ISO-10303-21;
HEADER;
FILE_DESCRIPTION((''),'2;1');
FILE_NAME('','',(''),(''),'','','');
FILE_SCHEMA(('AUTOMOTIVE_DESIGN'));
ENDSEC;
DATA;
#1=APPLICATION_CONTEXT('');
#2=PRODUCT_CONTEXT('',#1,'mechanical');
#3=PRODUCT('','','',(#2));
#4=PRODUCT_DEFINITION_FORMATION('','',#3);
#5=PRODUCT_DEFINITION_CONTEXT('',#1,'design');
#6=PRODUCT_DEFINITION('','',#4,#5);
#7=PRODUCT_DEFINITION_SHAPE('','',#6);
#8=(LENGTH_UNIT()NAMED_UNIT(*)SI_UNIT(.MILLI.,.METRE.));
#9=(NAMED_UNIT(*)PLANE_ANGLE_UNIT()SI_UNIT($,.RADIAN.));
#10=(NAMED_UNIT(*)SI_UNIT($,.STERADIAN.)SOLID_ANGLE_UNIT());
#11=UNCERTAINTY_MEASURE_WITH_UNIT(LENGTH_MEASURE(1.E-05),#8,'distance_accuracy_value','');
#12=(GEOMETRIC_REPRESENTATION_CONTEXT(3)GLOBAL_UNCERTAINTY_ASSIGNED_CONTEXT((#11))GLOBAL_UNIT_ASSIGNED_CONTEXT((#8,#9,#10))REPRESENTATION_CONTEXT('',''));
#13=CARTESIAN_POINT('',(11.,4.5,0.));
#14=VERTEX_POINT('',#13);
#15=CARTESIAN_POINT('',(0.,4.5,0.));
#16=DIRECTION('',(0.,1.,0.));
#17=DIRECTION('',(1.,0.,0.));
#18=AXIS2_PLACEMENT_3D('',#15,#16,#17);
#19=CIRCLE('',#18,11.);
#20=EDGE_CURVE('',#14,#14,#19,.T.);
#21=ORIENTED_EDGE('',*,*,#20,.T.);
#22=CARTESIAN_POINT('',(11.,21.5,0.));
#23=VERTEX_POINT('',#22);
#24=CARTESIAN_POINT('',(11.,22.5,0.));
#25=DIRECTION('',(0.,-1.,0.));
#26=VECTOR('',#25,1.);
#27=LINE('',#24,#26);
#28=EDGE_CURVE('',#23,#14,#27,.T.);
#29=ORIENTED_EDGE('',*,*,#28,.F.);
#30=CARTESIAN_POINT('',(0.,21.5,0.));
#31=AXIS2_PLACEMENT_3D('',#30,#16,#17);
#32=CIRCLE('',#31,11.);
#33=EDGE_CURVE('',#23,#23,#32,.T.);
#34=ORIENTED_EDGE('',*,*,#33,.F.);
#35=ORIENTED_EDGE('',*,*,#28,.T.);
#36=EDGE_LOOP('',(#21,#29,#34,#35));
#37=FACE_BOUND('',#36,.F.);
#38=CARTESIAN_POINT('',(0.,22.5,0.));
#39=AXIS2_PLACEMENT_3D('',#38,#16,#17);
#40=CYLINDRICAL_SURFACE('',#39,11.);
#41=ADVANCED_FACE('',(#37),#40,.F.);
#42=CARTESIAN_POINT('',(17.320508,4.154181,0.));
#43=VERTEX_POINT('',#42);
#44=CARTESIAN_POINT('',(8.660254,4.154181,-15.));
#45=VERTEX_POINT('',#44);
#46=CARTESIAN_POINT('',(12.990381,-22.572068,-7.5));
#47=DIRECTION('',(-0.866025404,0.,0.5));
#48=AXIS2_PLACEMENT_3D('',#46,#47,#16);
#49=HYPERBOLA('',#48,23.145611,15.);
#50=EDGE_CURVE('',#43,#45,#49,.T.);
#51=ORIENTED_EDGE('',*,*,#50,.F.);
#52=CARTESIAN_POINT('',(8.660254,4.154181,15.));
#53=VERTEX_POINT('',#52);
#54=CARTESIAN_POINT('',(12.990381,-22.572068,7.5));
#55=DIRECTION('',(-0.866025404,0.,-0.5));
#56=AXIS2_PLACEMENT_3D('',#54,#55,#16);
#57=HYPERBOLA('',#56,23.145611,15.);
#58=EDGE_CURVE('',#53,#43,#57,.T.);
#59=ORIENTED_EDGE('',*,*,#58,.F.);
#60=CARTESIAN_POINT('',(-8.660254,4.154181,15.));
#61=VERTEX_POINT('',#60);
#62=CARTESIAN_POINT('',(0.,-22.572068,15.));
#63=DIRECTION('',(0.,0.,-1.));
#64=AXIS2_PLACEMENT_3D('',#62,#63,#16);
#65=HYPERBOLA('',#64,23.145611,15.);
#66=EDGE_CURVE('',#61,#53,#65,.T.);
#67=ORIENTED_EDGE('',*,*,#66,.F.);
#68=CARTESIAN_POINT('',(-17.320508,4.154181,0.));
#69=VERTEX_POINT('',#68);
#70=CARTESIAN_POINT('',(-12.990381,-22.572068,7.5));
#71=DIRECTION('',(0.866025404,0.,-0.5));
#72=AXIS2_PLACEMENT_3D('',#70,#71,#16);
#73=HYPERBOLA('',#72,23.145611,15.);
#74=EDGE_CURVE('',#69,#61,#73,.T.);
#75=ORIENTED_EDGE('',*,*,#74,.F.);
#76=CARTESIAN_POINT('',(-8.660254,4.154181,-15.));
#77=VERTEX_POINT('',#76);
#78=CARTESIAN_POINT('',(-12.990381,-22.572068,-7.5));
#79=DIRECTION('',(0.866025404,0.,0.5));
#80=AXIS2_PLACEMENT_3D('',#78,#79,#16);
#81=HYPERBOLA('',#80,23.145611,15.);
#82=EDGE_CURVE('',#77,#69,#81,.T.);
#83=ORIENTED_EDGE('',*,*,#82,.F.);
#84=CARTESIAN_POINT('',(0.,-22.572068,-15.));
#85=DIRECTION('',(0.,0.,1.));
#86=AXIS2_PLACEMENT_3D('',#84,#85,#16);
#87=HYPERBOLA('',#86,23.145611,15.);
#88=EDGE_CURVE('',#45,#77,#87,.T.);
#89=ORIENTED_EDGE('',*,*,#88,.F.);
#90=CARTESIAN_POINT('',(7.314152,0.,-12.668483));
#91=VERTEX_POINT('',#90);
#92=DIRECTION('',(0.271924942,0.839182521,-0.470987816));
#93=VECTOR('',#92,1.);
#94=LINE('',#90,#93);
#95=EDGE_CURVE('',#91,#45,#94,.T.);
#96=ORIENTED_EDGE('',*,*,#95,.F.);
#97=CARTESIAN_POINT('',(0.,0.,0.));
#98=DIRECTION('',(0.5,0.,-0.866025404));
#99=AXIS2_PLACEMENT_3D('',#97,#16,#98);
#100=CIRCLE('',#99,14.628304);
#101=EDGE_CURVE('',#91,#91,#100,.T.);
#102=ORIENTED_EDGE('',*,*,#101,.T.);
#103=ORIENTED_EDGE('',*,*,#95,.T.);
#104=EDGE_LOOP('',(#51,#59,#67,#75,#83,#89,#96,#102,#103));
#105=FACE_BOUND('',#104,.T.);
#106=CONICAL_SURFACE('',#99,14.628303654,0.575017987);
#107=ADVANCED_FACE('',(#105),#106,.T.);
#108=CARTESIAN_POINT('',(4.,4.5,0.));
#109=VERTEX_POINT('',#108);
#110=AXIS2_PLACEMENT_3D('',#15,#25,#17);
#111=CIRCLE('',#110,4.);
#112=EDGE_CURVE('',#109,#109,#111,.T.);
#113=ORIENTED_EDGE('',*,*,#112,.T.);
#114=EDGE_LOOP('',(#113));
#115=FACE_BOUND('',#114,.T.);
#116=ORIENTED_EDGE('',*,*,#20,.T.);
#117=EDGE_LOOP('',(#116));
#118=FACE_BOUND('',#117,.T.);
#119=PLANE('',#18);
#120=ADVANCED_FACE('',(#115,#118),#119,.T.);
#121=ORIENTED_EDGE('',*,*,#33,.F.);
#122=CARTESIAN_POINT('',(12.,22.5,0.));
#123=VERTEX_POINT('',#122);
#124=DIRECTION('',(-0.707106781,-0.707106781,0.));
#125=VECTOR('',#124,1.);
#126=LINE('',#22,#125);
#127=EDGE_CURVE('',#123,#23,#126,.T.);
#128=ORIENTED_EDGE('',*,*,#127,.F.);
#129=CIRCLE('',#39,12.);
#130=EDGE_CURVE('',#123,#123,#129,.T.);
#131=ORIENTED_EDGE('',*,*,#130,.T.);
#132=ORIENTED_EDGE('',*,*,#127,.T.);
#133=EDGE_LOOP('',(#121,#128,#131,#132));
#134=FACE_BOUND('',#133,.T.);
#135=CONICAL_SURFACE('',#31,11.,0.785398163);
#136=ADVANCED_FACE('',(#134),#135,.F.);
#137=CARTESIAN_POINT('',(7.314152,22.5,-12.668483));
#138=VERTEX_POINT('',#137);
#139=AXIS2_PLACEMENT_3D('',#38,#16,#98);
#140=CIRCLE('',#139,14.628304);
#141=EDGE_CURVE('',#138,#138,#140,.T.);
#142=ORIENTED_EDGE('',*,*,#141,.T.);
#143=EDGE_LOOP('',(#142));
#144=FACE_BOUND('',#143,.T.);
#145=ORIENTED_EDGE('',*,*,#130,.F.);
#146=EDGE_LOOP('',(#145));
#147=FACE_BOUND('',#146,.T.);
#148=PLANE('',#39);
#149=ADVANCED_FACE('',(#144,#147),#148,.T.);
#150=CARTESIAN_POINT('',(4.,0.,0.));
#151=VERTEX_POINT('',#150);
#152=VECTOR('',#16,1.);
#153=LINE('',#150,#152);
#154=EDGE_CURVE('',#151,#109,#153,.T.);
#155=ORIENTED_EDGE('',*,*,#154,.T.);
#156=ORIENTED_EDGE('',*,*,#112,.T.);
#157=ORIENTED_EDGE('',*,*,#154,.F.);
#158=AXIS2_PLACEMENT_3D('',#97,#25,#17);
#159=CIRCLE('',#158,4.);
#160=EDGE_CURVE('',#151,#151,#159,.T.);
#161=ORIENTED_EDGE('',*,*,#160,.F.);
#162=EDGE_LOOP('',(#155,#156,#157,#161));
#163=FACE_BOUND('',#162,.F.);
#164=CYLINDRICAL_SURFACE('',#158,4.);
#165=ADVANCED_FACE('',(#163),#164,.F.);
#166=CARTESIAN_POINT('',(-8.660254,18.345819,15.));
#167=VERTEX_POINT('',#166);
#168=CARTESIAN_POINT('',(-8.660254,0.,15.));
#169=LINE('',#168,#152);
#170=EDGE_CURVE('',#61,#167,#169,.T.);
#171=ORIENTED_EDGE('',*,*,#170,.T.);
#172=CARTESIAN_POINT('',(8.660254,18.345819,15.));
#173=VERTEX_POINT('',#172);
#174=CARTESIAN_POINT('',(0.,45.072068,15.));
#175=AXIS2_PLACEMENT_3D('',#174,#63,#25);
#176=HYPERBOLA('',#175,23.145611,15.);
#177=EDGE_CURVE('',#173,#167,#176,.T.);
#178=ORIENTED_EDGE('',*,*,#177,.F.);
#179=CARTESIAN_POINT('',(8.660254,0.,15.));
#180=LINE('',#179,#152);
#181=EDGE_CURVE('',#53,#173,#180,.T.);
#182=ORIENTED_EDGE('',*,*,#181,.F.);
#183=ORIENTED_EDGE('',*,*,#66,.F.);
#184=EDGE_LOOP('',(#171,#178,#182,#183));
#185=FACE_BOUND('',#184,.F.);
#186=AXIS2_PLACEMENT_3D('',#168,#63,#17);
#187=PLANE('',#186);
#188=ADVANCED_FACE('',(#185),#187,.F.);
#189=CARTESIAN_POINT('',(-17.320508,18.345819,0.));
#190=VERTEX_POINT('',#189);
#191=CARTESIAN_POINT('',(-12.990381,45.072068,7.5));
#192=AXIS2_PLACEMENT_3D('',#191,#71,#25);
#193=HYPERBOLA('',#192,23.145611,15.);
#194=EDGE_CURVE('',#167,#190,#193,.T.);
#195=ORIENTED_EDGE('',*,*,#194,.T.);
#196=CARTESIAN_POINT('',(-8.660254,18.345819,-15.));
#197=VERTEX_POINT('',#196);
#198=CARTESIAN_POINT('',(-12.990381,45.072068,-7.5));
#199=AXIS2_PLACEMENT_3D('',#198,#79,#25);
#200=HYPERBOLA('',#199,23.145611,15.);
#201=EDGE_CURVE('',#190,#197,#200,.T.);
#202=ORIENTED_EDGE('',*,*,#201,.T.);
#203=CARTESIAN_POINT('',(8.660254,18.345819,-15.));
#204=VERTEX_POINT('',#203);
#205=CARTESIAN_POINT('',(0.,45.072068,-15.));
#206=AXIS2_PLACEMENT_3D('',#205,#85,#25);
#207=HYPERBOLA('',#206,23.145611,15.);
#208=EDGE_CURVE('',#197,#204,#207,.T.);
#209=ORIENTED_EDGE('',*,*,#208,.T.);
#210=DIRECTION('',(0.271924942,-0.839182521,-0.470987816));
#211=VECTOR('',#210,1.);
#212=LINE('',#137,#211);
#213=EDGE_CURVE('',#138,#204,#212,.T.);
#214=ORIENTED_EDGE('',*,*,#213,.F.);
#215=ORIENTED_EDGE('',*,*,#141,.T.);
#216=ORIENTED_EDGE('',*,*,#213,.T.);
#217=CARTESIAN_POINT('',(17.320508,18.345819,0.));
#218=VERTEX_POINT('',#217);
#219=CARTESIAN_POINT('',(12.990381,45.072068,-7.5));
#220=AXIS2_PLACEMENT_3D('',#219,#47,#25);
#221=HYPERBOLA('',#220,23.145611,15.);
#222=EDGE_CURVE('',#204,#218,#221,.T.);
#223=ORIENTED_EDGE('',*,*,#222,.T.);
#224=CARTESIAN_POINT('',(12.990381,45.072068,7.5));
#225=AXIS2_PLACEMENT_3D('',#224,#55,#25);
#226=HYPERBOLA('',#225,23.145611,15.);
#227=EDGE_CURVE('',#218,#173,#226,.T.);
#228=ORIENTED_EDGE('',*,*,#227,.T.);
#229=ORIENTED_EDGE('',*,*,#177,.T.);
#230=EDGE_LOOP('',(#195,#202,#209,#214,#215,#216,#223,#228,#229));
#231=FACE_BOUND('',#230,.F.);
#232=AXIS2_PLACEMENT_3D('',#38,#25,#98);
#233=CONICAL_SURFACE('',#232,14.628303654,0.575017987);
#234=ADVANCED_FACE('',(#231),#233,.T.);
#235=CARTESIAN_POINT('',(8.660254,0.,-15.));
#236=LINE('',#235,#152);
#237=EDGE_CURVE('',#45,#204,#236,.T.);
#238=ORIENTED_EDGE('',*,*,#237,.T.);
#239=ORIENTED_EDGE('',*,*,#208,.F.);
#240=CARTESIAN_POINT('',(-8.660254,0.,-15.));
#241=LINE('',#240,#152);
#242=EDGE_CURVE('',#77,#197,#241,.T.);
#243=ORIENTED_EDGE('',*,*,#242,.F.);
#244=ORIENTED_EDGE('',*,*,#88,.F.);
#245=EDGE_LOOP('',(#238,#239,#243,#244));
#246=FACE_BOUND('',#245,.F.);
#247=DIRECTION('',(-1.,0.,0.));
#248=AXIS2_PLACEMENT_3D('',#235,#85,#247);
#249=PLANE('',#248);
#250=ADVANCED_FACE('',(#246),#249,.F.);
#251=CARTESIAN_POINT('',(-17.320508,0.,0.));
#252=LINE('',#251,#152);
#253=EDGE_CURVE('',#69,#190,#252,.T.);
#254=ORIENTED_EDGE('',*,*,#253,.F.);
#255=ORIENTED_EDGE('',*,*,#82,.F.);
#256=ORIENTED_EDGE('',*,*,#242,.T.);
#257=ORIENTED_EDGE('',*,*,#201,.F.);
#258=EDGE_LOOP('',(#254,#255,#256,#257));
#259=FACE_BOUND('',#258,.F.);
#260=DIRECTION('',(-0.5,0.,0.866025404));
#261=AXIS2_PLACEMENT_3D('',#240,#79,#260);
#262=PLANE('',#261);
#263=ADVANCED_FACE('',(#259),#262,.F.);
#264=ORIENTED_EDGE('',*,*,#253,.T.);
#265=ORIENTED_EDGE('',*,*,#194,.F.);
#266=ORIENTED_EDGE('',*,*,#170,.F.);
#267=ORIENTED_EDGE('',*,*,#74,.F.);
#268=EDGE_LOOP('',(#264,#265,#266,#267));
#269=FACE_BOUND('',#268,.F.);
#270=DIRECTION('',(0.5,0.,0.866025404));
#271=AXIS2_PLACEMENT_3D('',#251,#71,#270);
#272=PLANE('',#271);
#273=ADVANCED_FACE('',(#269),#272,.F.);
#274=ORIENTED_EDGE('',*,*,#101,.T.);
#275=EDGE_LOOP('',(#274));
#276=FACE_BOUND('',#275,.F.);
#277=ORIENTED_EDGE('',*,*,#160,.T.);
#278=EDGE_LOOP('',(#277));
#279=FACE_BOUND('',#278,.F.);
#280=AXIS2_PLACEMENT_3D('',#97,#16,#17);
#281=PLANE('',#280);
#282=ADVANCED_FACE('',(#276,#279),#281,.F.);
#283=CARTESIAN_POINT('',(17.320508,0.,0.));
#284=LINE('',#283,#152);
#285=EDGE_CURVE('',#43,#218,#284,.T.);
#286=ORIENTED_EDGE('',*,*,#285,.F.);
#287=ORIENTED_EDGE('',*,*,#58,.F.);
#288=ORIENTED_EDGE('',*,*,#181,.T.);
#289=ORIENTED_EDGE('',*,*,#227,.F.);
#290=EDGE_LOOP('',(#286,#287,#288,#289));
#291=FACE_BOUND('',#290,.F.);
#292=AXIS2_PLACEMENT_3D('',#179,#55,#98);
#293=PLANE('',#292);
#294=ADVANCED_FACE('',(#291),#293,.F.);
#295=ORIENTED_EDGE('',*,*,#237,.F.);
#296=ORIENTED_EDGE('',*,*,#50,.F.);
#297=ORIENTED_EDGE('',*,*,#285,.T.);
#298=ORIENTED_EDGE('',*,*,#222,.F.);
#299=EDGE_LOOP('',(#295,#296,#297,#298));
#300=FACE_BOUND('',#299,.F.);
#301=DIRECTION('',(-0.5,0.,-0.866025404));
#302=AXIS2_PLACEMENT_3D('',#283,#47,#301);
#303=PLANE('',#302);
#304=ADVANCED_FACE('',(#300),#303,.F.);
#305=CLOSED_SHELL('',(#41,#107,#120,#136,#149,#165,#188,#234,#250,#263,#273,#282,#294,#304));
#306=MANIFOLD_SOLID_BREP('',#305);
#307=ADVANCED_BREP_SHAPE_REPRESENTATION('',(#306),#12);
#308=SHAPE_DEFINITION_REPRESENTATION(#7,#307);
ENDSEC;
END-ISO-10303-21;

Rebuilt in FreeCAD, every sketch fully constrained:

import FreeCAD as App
import Part
import Sketcher
from FreeCAD import Vector
Q = App.Units.Quantity


def edges_at(feature, points):
    """Names of the edges that pass closest to the given points."""
    edges = feature.Shape.Edges
    near = lambda p: min(range(len(edges)), key=lambda i: edges[i].distToShape(Part.Vertex(*p))[0])
    return sorted({f"Edge{near(p) + 1}" for p in points})

doc = App.newDocument("Part")
body = doc.addObject("PartDesign::Body", "Body")

sketch1 = doc.addObject("Sketcher::SketchObject", "Sketch")
body.addObject(sketch1)
sketch1.AttachmentSupport = (doc.XZ_Plane, [""])
sketch1.MapMode = "FlatFace"
sketch1.addGeometry([
    Part.LineSegment(Vector(17.320508, 0, 0), Vector(8.660254, -15, 0)),
    Part.LineSegment(Vector(8.660254, -15, 0), Vector(-8.660254, -15, 0)),
    Part.LineSegment(Vector(-8.660254, -15, 0), Vector(-17.320508, 0, 0)),
    Part.LineSegment(Vector(-17.320508, 0, 0), Vector(-8.660254, 15, 0)),
    Part.LineSegment(Vector(-8.660254, 15, 0), Vector(8.660254, 15, 0)),
    Part.LineSegment(Vector(8.660254, 15, 0), Vector(17.320508, 0, 0)),
], False)
sketch1.addConstraint([
    Sketcher.Constraint("Coincident", 0, 2, 1, 1),
    Sketcher.Constraint("Coincident", 1, 2, 2, 1),
    Sketcher.Constraint("Coincident", 2, 2, 3, 1),
    Sketcher.Constraint("Coincident", 3, 2, 4, 1),
    Sketcher.Constraint("Coincident", 4, 2, 5, 1),
    Sketcher.Constraint("Coincident", 5, 2, 0, 1),
    Sketcher.Constraint("Horizontal", 1),
    Sketcher.Constraint("Horizontal", 4),
    Sketcher.Constraint("Symmetric", 0, 2, 3, 2, -1, 1),
    Sketcher.Constraint("Symmetric", 2, 2, 5, 2, -1, 1),
    Sketcher.Constraint("PointOnObject", 2, 2, -1),
    Sketcher.Constraint("Parallel", 2, 5),
    Sketcher.Constraint("Vertical", 1, 2, 3, 2),
    Sketcher.Constraint("Angle", 0, Q("-120 deg")),
    Sketcher.Constraint("DistanceY", 0, 2, -1, 1, Q("15 mm")),
    Sketcher.Constraint("DistanceX", 1, 2, 1, 1, Q("17.320508 mm")),
])
pad1 = doc.addObject("PartDesign::Pad", "Pad")
body.addObject(pad1)
pad1.Profile = sketch1
pad1.Length = 22.5
pad1.Reversed = True

sketch2 = doc.addObject("Sketcher::SketchObject", "Sketch001")
body.addObject(sketch2)
sketch2.AttachmentSupport = (doc.XZ_Plane, [""])
sketch2.MapMode = "FlatFace"
sketch2.AttachmentOffset = App.Placement(Vector(0, 0, -22.5), App.Rotation())
sketch2.addGeometry(Part.Circle(Vector(0, 0, 0), Vector(0, 0, 1), 11), False)
sketch2.addConstraint([
    Sketcher.Constraint("Coincident", 0, 3, -1, 1),
    Sketcher.Constraint("Diameter", 0, Q("22 mm")),
])
pocket1 = doc.addObject("PartDesign::Pocket", "Pocket")
body.addObject(pocket1)
pocket1.Profile = sketch2
pocket1.Length = 18
pocket1.Reversed = True

sketch3 = doc.addObject("Sketcher::SketchObject", "Sketch002")
body.addObject(sketch3)
sketch3.AttachmentSupport = (doc.XZ_Plane, [""])
sketch3.MapMode = "FlatFace"
sketch3.addGeometry(Part.Circle(Vector(0, 0, 0), Vector(0, 0, 1), 4), False)
sketch3.addConstraint([
    Sketcher.Constraint("Coincident", 0, 3, -1, 1),
    Sketcher.Constraint("Diameter", 0, Q("8 mm")),
])
pocket2 = doc.addObject("PartDesign::Pocket", "Pocket001")
body.addObject(pocket2)
pocket2.Profile = sketch3
pocket2.Type = "UpToFirst"

sketch4 = doc.addObject("Sketcher::SketchObject", "Sketch003")
body.addObject(sketch4)
sketch4.Placement = App.Placement(Vector(0, 0, 0), App.Rotation(Vector(-0.5, 0, 0.866025404), Vector(0, 1, 0), Vector(-0.866025404, 0, -0.5), "ZXY"))
sketch4.addGeometry([
    Part.LineSegment(Vector(-17.320508, 22.5, 0), Vector(-17.320508, 18.345819, 0)),
    Part.LineSegment(Vector(-17.320508, 18.345819, 0), Vector(-14.628304, 22.5, 0)),
    Part.LineSegment(Vector(-14.628304, 22.5, 0), Vector(-17.320508, 22.5, 0)),
], False)
sketch4.addConstraint([
    Sketcher.Constraint("Coincident", 0, 2, 1, 1),
    Sketcher.Constraint("Coincident", 1, 2, 2, 1),
    Sketcher.Constraint("Coincident", 2, 2, 0, 1),
    Sketcher.Constraint("Vertical", 0),
    Sketcher.Constraint("Horizontal", 2),
    Sketcher.Constraint("DistanceY", -1, 1, 1, 2, Q("22.5 mm")),
    Sketcher.Constraint("DistanceY", 0, 2, 0, 1, Q("4.154181 mm")),
    Sketcher.Constraint("Distance", 1, Q("4.950271 mm")),
    Sketcher.Constraint("DistanceX", 0, 2, -1, 1, Q("17.320508 mm")),
])
groove = doc.addObject("PartDesign::Groove", "Groove")
body.addObject(groove)
groove.Profile = sketch4
groove.ReferenceAxis = (sketch4, ["V_Axis"])
groove.Angle = 360
doc.recompute()

datumplane = doc.addObject("PartDesign::Plane", "DatumPlane")
body.addObject(datumplane)
datumplane.AttachmentSupport = (doc.XZ_Plane, [""])
datumplane.MapMode = "FlatFace"
datumplane.AttachmentOffset = App.Placement(Vector(0, 0, -11.25), App.Rotation())
mirrored = doc.addObject("PartDesign::Mirrored", "Mirrored")
body.addObject(mirrored)
mirrored.Originals = [groove]
mirrored.MirrorPlane = (datumplane, [""])
body.Tip = mirrored
doc.recompute()

chamfer = doc.addObject("PartDesign::Chamfer", "Chamfer")
body.addObject(chamfer)
chamfer.Base = (mirrored, edges_at(mirrored, [(-11, 22.5, 0)]))
chamfer.Size = 1

doc.recompute()
